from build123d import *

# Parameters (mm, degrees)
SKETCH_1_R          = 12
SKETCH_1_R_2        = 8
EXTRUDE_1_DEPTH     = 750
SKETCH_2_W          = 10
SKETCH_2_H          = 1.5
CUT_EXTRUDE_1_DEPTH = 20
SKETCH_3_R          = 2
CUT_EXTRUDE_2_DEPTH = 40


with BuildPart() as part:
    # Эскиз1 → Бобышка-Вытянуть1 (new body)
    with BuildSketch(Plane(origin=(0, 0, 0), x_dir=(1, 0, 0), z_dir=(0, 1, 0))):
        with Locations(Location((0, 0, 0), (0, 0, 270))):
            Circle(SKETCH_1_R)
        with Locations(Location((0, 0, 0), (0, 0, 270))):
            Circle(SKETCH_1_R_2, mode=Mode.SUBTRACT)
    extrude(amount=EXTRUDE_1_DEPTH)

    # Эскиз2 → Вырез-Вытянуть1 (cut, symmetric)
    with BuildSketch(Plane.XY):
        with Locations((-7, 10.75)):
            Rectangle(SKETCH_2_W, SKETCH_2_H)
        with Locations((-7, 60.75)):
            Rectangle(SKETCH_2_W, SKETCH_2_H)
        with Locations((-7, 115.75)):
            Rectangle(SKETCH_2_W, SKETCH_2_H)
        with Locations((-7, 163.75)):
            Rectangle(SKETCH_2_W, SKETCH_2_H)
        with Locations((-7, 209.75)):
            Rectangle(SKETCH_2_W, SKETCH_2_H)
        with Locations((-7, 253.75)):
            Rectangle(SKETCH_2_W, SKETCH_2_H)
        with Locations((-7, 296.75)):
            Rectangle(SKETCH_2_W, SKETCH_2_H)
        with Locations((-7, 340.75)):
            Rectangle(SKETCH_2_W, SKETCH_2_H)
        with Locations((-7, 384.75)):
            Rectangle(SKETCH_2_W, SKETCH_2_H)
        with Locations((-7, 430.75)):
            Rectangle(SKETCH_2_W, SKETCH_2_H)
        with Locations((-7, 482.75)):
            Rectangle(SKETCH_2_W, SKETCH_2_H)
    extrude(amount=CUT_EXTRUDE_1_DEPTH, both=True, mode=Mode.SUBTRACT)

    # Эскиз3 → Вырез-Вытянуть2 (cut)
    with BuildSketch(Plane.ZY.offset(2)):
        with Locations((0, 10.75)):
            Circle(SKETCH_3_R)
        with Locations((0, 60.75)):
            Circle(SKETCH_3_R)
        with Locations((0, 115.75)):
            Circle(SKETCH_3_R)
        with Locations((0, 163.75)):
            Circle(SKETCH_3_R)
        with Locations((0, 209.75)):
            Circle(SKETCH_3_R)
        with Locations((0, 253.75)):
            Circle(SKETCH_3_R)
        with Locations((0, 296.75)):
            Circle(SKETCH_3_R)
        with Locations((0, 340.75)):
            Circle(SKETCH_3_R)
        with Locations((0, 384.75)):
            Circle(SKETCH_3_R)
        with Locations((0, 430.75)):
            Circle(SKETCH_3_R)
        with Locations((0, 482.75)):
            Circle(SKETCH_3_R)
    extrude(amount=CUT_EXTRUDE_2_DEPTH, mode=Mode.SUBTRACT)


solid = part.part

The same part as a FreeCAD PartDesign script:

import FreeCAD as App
import Part
import Sketcher

doc = App.newDocument("Part")
body = doc.addObject("PartDesign::Body", "Body")

# Sketch on XZ plane
sketch1 = body.newObject("Sketcher::SketchObject", "Sketch")
sketch1.AttachmentSupport = (doc.getObject("XZ_Plane"), [""])
sketch1.MapMode = "FlatFace"
sketch1.addGeometry([
    Part.Circle(App.Vector(0, 0, 0), App.Vector(0, 0, 1), 12),
    Part.Circle(App.Vector(0, 0, 0), App.Vector(0, 0, 1), 8),
], False)
sketch1.addConstraint([
    Sketcher.Constraint("Coincident", 0, 3, -1, 1),
    Sketcher.Constraint("Coincident", 1, 3, -1, 1),
    Sketcher.Constraint("Diameter", 0, 24.0),
    Sketcher.Constraint("Diameter", 1, 16.0),
])
pad1 = body.newObject("PartDesign::Pad", "Pad")
pad1.Profile = sketch1
pad1.Length = 750
pad1.Reversed = True

# Sketch on XY plane
sketch2 = body.newObject("Sketcher::SketchObject", "Sketch001")
sketch2.AttachmentSupport = (doc.getObject("XY_Plane"), [""])
sketch2.MapMode = "FlatFace"
sketch2.addGeometry([
    Part.LineSegment(App.Vector(-12, 11.5, 0), App.Vector(-12, 10, 0)),  # 0
    Part.LineSegment(App.Vector(-12, 10, 0), App.Vector(-2, 10, 0)),  # 1
    Part.LineSegment(App.Vector(-2, 10, 0), App.Vector(-2, 11.5, 0)),  # 2
    Part.LineSegment(App.Vector(-2, 11.5, 0), App.Vector(-12, 11.5, 0)),  # 3
    Part.LineSegment(App.Vector(-12, 61.5, 0), App.Vector(-12, 60, 0)),  # 4
    Part.LineSegment(App.Vector(-12, 60, 0), App.Vector(-2, 60, 0)),  # 5
    Part.LineSegment(App.Vector(-2, 60, 0), App.Vector(-2, 61.5, 0)),  # 6
    Part.LineSegment(App.Vector(-2, 61.5, 0), App.Vector(-12, 61.5, 0)),  # 7
    Part.LineSegment(App.Vector(-12, 116.5, 0), App.Vector(-12, 115, 0)),  # 8
    Part.LineSegment(App.Vector(-12, 115, 0), App.Vector(-2, 115, 0)),  # 9
    Part.LineSegment(App.Vector(-2, 115, 0), App.Vector(-2, 116.5, 0)),  # 10
    Part.LineSegment(App.Vector(-2, 116.5, 0), App.Vector(-12, 116.5, 0)),  # 11
    Part.LineSegment(App.Vector(-12, 164.5, 0), App.Vector(-12, 163, 0)),  # 12
    Part.LineSegment(App.Vector(-12, 163, 0), App.Vector(-2, 163, 0)),  # 13
    Part.LineSegment(App.Vector(-2, 163, 0), App.Vector(-2, 164.5, 0)),  # 14
    Part.LineSegment(App.Vector(-2, 164.5, 0), App.Vector(-12, 164.5, 0)),  # 15
    Part.LineSegment(App.Vector(-12, 210.5, 0), App.Vector(-12, 209, 0)),  # 16
    Part.LineSegment(App.Vector(-12, 209, 0), App.Vector(-2, 209, 0)),  # 17
    Part.LineSegment(App.Vector(-2, 209, 0), App.Vector(-2, 210.5, 0)),  # 18
    Part.LineSegment(App.Vector(-2, 210.5, 0), App.Vector(-12, 210.5, 0)),  # 19
    Part.LineSegment(App.Vector(-12, 254.5, 0), App.Vector(-12, 253, 0)),  # 20
    Part.LineSegment(App.Vector(-12, 253, 0), App.Vector(-2, 253, 0)),  # 21
    Part.LineSegment(App.Vector(-2, 253, 0), App.Vector(-2, 254.5, 0)),  # 22
    Part.LineSegment(App.Vector(-2, 254.5, 0), App.Vector(-12, 254.5, 0)),  # 23
    Part.LineSegment(App.Vector(-12, 297.5, 0), App.Vector(-12, 296, 0)),  # 24
    Part.LineSegment(App.Vector(-12, 296, 0), App.Vector(-2, 296, 0)),  # 25
    Part.LineSegment(App.Vector(-2, 296, 0), App.Vector(-2, 297.5, 0)),  # 26
    Part.LineSegment(App.Vector(-2, 297.5, 0), App.Vector(-12, 297.5, 0)),  # 27
    Part.LineSegment(App.Vector(-12, 341.5, 0), App.Vector(-12, 340, 0)),  # 28
    Part.LineSegment(App.Vector(-12, 340, 0), App.Vector(-2, 340, 0)),  # 29
    Part.LineSegment(App.Vector(-2, 340, 0), App.Vector(-2, 341.5, 0)),  # 30
    Part.LineSegment(App.Vector(-2, 341.5, 0), App.Vector(-12, 341.5, 0)),  # 31
    Part.LineSegment(App.Vector(-12, 385.5, 0), App.Vector(-12, 384, 0)),  # 32
    Part.LineSegment(App.Vector(-12, 384, 0), App.Vector(-2, 384, 0)),  # 33
    Part.LineSegment(App.Vector(-2, 384, 0), App.Vector(-2, 385.5, 0)),  # 34
    Part.LineSegment(App.Vector(-2, 385.5, 0), App.Vector(-12, 385.5, 0)),  # 35
    Part.LineSegment(App.Vector(-12, 431.5, 0), App.Vector(-12, 430, 0)),  # 36
    Part.LineSegment(App.Vector(-12, 430, 0), App.Vector(-2, 430, 0)),  # 37
    Part.LineSegment(App.Vector(-2, 430, 0), App.Vector(-2, 431.5, 0)),  # 38
    Part.LineSegment(App.Vector(-2, 431.5, 0), App.Vector(-12, 431.5, 0)),  # 39
    Part.LineSegment(App.Vector(-12, 483.5, 0), App.Vector(-12, 482, 0)),  # 40
    Part.LineSegment(App.Vector(-12, 482, 0), App.Vector(-2, 482, 0)),  # 41
    Part.LineSegment(App.Vector(-2, 482, 0), App.Vector(-2, 483.5, 0)),  # 42
    Part.LineSegment(App.Vector(-2, 483.5, 0), App.Vector(-12, 483.5, 0)),  # 43
], False)
sketch2.addConstraint([
    Sketcher.Constraint("Coincident", 0, 2, 1, 1),
    Sketcher.Constraint("Coincident", 1, 2, 2, 1),
    Sketcher.Constraint("Coincident", 2, 2, 3, 1),
    Sketcher.Constraint("Coincident", 3, 2, 0, 1),
    Sketcher.Constraint("Coincident", 4, 2, 5, 1),
    Sketcher.Constraint("Coincident", 5, 2, 6, 1),
    Sketcher.Constraint("Coincident", 6, 2, 7, 1),
    Sketcher.Constraint("Coincident", 7, 2, 4, 1),
    Sketcher.Constraint("Coincident", 8, 2, 9, 1),
    Sketcher.Constraint("Coincident", 9, 2, 10, 1),
    Sketcher.Constraint("Coincident", 10, 2, 11, 1),
    Sketcher.Constraint("Coincident", 11, 2, 8, 1),
    Sketcher.Constraint("Coincident", 12, 2, 13, 1),
    Sketcher.Constraint("Coincident", 13, 2, 14, 1),
    Sketcher.Constraint("Coincident", 14, 2, 15, 1),
    Sketcher.Constraint("Coincident", 15, 2, 12, 1),
    Sketcher.Constraint("Coincident", 16, 2, 17, 1),
    Sketcher.Constraint("Coincident", 17, 2, 18, 1),
    Sketcher.Constraint("Coincident", 18, 2, 19, 1),
    Sketcher.Constraint("Coincident", 19, 2, 16, 1),
    Sketcher.Constraint("Coincident", 20, 2, 21, 1),
    Sketcher.Constraint("Coincident", 21, 2, 22, 1),
    Sketcher.Constraint("Coincident", 22, 2, 23, 1),
    Sketcher.Constraint("Coincident", 23, 2, 20, 1),
    Sketcher.Constraint("Coincident", 24, 2, 25, 1),
    Sketcher.Constraint("Coincident", 25, 2, 26, 1),
    Sketcher.Constraint("Coincident", 26, 2, 27, 1),
    Sketcher.Constraint("Coincident", 27, 2, 24, 1),
    Sketcher.Constraint("Coincident", 28, 2, 29, 1),
    Sketcher.Constraint("Coincident", 29, 2, 30, 1),
    Sketcher.Constraint("Coincident", 30, 2, 31, 1),
    Sketcher.Constraint("Coincident", 31, 2, 28, 1),
    Sketcher.Constraint("Coincident", 32, 2, 33, 1),
    Sketcher.Constraint("Coincident", 33, 2, 34, 1),
    Sketcher.Constraint("Coincident", 34, 2, 35, 1),
    Sketcher.Constraint("Coincident", 35, 2, 32, 1),
    Sketcher.Constraint("Coincident", 36, 2, 37, 1),
    Sketcher.Constraint("Coincident", 37, 2, 38, 1),
    Sketcher.Constraint("Coincident", 38, 2, 39, 1),
    Sketcher.Constraint("Coincident", 39, 2, 36, 1),
    Sketcher.Constraint("Coincident", 40, 2, 41, 1),
    Sketcher.Constraint("Coincident", 41, 2, 42, 1),
    Sketcher.Constraint("Coincident", 42, 2, 43, 1),
    Sketcher.Constraint("Coincident", 43, 2, 40, 1),
    Sketcher.Constraint("Vertical", 0),
    Sketcher.Constraint("Horizontal", 1),
    Sketcher.Constraint("Vertical", 2),
    Sketcher.Constraint("Horizontal", 3),
    Sketcher.Constraint("Vertical", 4),
    Sketcher.Constraint("Horizontal", 5),
    Sketcher.Constraint("Vertical", 6),
    Sketcher.Constraint("Horizontal", 7),
    Sketcher.Constraint("Vertical", 8),
    Sketcher.Constraint("Horizontal", 9),
    Sketcher.Constraint("Vertical", 10),
    Sketcher.Constraint("Horizontal", 11),
    Sketcher.Constraint("Vertical", 12),
    Sketcher.Constraint("Horizontal", 13),
    Sketcher.Constraint("Vertical", 14),
    Sketcher.Constraint("Horizontal", 15),
    Sketcher.Constraint("Vertical", 16),
    Sketcher.Constraint("Horizontal", 17),
    Sketcher.Constraint("Vertical", 18),
    Sketcher.Constraint("Horizontal", 19),
    Sketcher.Constraint("Vertical", 20),
    Sketcher.Constraint("Horizontal", 21),
    Sketcher.Constraint("Vertical", 22),
    Sketcher.Constraint("Horizontal", 23),
    Sketcher.Constraint("Vertical", 24),
    Sketcher.Constraint("Horizontal", 25),
    Sketcher.Constraint("Vertical", 26),
    Sketcher.Constraint("Horizontal", 27),
    Sketcher.Constraint("Vertical", 28),
    Sketcher.Constraint("Horizontal", 29),
    Sketcher.Constraint("Vertical", 30),
    Sketcher.Constraint("Horizontal", 31),
    Sketcher.Constraint("Vertical", 32),
    Sketcher.Constraint("Horizontal", 33),
    Sketcher.Constraint("Vertical", 34),
    Sketcher.Constraint("Horizontal", 35),
    Sketcher.Constraint("Vertical", 36),
    Sketcher.Constraint("Horizontal", 37),
    Sketcher.Constraint("Vertical", 38),
    Sketcher.Constraint("Horizontal", 39),
    Sketcher.Constraint("Vertical", 40),
    Sketcher.Constraint("Horizontal", 41),
    Sketcher.Constraint("Vertical", 42),
    Sketcher.Constraint("Horizontal", 43),
    Sketcher.Constraint("Vertical", 3, 2, 4, 2),
    Sketcher.Constraint("Vertical", 2, 2, 5, 2),
    Sketcher.Constraint("Vertical", 7, 2, 8, 2),
    Sketcher.Constraint("Vertical", 6, 2, 9, 2),
    Sketcher.Constraint("Vertical", 11, 2, 12, 2),
    Sketcher.Constraint("Vertical", 10, 2, 13, 2),
    Sketcher.Constraint("Vertical", 15, 2, 16, 2),
    Sketcher.Constraint("Vertical", 14, 2, 17, 2),
    Sketcher.Constraint("Vertical", 19, 2, 20, 2),
    Sketcher.Constraint("Vertical", 18, 2, 21, 2),
    Sketcher.Constraint("Vertical", 23, 2, 24, 2),
    Sketcher.Constraint("Vertical", 22, 2, 25, 2),
    Sketcher.Constraint("Vertical", 27, 2, 28, 2),
    Sketcher.Constraint("Vertical", 26, 2, 29, 2),
    Sketcher.Constraint("Vertical", 31, 2, 32, 2),
    Sketcher.Constraint("Vertical", 30, 2, 33, 2),
    Sketcher.Constraint("Vertical", 35, 2, 36, 2),
    Sketcher.Constraint("Vertical", 34, 2, 37, 2),
    Sketcher.Constraint("Vertical", 39, 2, 40, 2),
    Sketcher.Constraint("Vertical", 38, 2, 41, 2),
    Sketcher.Constraint("Equal", 2, 4),
    Sketcher.Constraint("Equal", 6, 8),
    Sketcher.Constraint("Equal", 10, 12),
    Sketcher.Constraint("Equal", 14, 16),
    Sketcher.Constraint("Equal", 18, 20),
    Sketcher.Constraint("Equal", 22, 24),
    Sketcher.Constraint("Equal", 26, 28),
    Sketcher.Constraint("Equal", 30, 32),
    Sketcher.Constraint("Equal", 34, 36),
    Sketcher.Constraint("Equal", 38, 40),
    Sketcher.Constraint("DistanceX", 1, 1, 1, 2, 10.0),
    Sketcher.Constraint("DistanceY", 0, 2, 0, 1, 1.5),
    Sketcher.Constraint("DistanceX", 0, 2, -1, 1, 12.0),
    Sketcher.Constraint("DistanceY", -1, 1, 0, 2, 10.0),
    Sketcher.Constraint("DistanceY", -1, 1, 4, 2, 60.0),
    Sketcher.Constraint("DistanceY", -1, 1, 8, 2, 115.0),
    Sketcher.Constraint("DistanceY", -1, 1, 12, 2, 163.0),
    Sketcher.Constraint("DistanceY", -1, 1, 16, 2, 209.0),
    Sketcher.Constraint("DistanceY", -1, 1, 20, 2, 253.0),
    Sketcher.Constraint("DistanceY", -1, 1, 24, 2, 296.0),
    Sketcher.Constraint("DistanceY", -1, 1, 28, 2, 340.0),
    Sketcher.Constraint("DistanceY", -1, 1, 32, 2, 384.0),
    Sketcher.Constraint("DistanceY", -1, 1, 36, 2, 430.0),
    Sketcher.Constraint("DistanceY", -1, 1, 40, 2, 482.0),
])
pocket1 = body.newObject("PartDesign::Pocket", "Pocket")
pocket1.Profile = sketch2
pocket1.Length = 40
pocket1.Midplane = True

# Sketch on YZ plane
sketch3 = body.newObject("Sketcher::SketchObject", "Sketch002")
sketch3.AttachmentSupport = (doc.getObject("YZ_Plane"), [""])
sketch3.MapMode = "FlatFace"
sketch3.AttachmentOffset = App.Placement(App.Vector(0, 0, -2), App.Rotation())
sketch3.addGeometry([
    Part.Circle(App.Vector(10.8, 0, 0), App.Vector(0, 0, 1), 2),  # 0
    Part.Circle(App.Vector(60.8, 0, 0), App.Vector(0, 0, 1), 2),  # 1
    Part.Circle(App.Vector(115.8, 0, 0), App.Vector(0, 0, 1), 2),  # 2
    Part.Circle(App.Vector(163.8, 0, 0), App.Vector(0, 0, 1), 2),  # 3
    Part.Circle(App.Vector(209.8, 0, 0), App.Vector(0, 0, 1), 2),  # 4
    Part.Circle(App.Vector(253.8, 0, 0), App.Vector(0, 0, 1), 2),  # 5
    Part.Circle(App.Vector(296.8, 0, 0), App.Vector(0, 0, 1), 2),  # 6
    Part.Circle(App.Vector(340.8, 0, 0), App.Vector(0, 0, 1), 2),  # 7
    Part.Circle(App.Vector(384.8, 0, 0), App.Vector(0, 0, 1), 2),  # 8
    Part.Circle(App.Vector(430.8, 0, 0), App.Vector(0, 0, 1), 2),  # 9
    Part.Circle(App.Vector(482.8, 0, 0), App.Vector(0, 0, 1), 2),  # 10
], False)
sketch3.addConstraint([
    Sketcher.Constraint("Equal", 0, 1),
    Sketcher.Constraint("Equal", 1, 2),
    Sketcher.Constraint("Equal", 2, 3),
    Sketcher.Constraint("Equal", 3, 4),
    Sketcher.Constraint("Equal", 4, 5),
    Sketcher.Constraint("Equal", 5, 6),
    Sketcher.Constraint("Equal", 6, 7),
    Sketcher.Constraint("Equal", 7, 8),
    Sketcher.Constraint("Equal", 8, 9),
    Sketcher.Constraint("Equal", 9, 10),
    Sketcher.Constraint("PointOnObject", 0, 3, -1),
    Sketcher.Constraint("PointOnObject", 1, 3, -1),
    Sketcher.Constraint("PointOnObject", 2, 3, -1),
    Sketcher.Constraint("PointOnObject", 3, 3, -1),
    Sketcher.Constraint("PointOnObject", 4, 3, -1),
    Sketcher.Constraint("PointOnObject", 5, 3, -1),
    Sketcher.Constraint("PointOnObject", 6, 3, -1),
    Sketcher.Constraint("PointOnObject", 7, 3, -1),
    Sketcher.Constraint("PointOnObject", 8, 3, -1),
    Sketcher.Constraint("PointOnObject", 9, 3, -1),
    Sketcher.Constraint("PointOnObject", 10, 3, -1),
    Sketcher.Constraint("Diameter", 0, 4.0),
    Sketcher.Constraint("DistanceX", 0, 3, 1, 3, 50.0),
    Sketcher.Constraint("DistanceX", 1, 3, 2, 3, 55.0),
    Sketcher.Constraint("DistanceX", 2, 3, 3, 3, 48.0),
    Sketcher.Constraint("DistanceX", 3, 3, 4, 3, 46.0),
    Sketcher.Constraint("DistanceX", 4, 3, 5, 3, 44.0),
    Sketcher.Constraint("DistanceX", 5, 3, 6, 3, 43.0),
    Sketcher.Constraint("DistanceX", 6, 3, 7, 3, 44.0),
    Sketcher.Constraint("DistanceX", 7, 3, 8, 3, 44.0),
    Sketcher.Constraint("DistanceX", 8, 3, 9, 3, 46.0),
    Sketcher.Constraint("DistanceX", 9, 3, 10, 3, 52.0),
    Sketcher.Constraint("DistanceX", -1, 1, 0, 3, 10.75),
])
pocket2 = body.newObject("PartDesign::Pocket", "Pocket001")
pocket2.Profile = sketch3
pocket2.Length = 40

doc.recompute()
